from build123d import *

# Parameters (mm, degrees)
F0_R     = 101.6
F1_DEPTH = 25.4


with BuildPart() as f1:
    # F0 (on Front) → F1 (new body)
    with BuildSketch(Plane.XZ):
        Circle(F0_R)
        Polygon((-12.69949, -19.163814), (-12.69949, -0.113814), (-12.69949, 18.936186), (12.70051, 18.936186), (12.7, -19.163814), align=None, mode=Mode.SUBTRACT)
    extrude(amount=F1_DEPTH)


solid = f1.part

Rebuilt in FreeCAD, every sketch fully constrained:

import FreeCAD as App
import Part
import Sketcher

V = App.Vector
Q = App.Units.Quantity

doc = App.newDocument("Part")
params = doc.addObject("Spreadsheet::Sheet", "Params")
for row, (alias, value) in enumerate([
    ("sketch1_diameter", "8 in"),
    ("sketch1_width", "1 in"),
    ("sketch1_height", "1.5 in"),
    ("pad1_length", "1 in"),
], start=1):
    params.set(f"A{row}", alias)
    params.set(f"B{row}", "=" + value)
    params.setAlias(f"B{row}", alias)

body = doc.addObject("PartDesign::Body", "Body")

sketch1 = body.newObject("Sketcher::SketchObject", "Sketch")
sketch1.AttachmentSupport = (doc.getObject("XZ_Plane"), [""])
sketch1.MapMode = "FlatFace"
sketch1.addGeometry(Part.Circle(V(0, 0, 0), V(0, 0, 1), 101.6), False)
sketch1.addGeometry(Part.LineSegment(V(12.7, -19.163814, 0), V(-12.69949, -19.163814, 0)), False)
sketch1.addGeometry(Part.LineSegment(V(-12.69949, -19.163814, 0), V(-12.69949, 18.936186, 0)), False)
sketch1.addGeometry(Part.LineSegment(V(-12.69949, 18.936186, 0), V(12.70051, 18.936186, 0)), False)
sketch1.addGeometry(Part.LineSegment(V(12.70051, 18.936186, 0), V(12.7, -19.163814, 0)), False)
sketch1.addConstraint(Sketcher.Constraint("Coincident", 1, 2, 2, 1))
sketch1.addConstraint(Sketcher.Constraint("Coincident", 2, 2, 3, 1))
sketch1.addConstraint(Sketcher.Constraint("Coincident", 3, 2, 4, 1))
sketch1.addConstraint(Sketcher.Constraint("Coincident", 4, 2, 1, 1))
sketch1.addConstraint(Sketcher.Constraint("Horizontal", 1))
sketch1.addConstraint(Sketcher.Constraint("Vertical", 2))
sketch1.addConstraint(Sketcher.Constraint("Horizontal", 3))
sketch1.addConstraint(Sketcher.Constraint("Coincident", 0, 3, -1, 1))
sketch1.addConstraint(Sketcher.Constraint("Diameter", 0, Q("8 in")))
sketch1.addConstraint(Sketcher.Constraint("DistanceX", 3, 1, 3, 2, Q("1 in")))
sketch1.addConstraint(Sketcher.Constraint("DistanceY", 2, 1, 2, 2, Q("1.5 in")))
sketch1.addConstraint(Sketcher.Constraint("DistanceX", -1, 1, 4, 2, Q("0.5 in")))
sketch1.addConstraint(Sketcher.Constraint("DistanceX", 1, 2, 1, 1, 25.39949))
sketch1.addConstraint(Sketcher.Constraint("DistanceY", 1, 2, -1, 1, 19.163814))
sketch1.setExpression("Constraints[8]", "Params.sketch1_diameter")
sketch1.setExpression("Constraints[9]", "Params.sketch1_width")
sketch1.setExpression("Constraints[10]", "Params.sketch1_height")
pad1 = body.newObject("PartDesign::Pad", "Pad")
pad1.Profile = sketch1
pad1.setExpression("Length", "Params.pad1_length")

doc.recompute()
